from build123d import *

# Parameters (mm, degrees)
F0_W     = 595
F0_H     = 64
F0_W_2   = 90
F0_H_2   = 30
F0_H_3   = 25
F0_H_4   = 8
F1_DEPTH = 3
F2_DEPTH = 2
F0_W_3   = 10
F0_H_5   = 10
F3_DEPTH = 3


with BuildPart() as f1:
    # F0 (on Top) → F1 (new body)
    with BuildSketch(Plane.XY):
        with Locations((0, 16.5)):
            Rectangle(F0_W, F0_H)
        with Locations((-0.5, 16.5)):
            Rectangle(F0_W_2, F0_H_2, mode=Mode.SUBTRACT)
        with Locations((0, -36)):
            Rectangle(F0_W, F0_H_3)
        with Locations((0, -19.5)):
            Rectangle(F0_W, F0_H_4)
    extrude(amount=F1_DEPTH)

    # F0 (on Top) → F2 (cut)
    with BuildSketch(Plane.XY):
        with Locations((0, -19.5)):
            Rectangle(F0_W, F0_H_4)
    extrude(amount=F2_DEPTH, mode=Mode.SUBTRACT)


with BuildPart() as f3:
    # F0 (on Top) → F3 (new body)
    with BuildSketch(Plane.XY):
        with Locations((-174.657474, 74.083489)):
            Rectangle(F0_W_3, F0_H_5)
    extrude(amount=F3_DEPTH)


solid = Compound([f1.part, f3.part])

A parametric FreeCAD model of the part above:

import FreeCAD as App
import Part
import Sketcher

V = App.Vector
Q = App.Units.Quantity


def add_polygon(sketch, points):
    """Adds a closed chain of lines whose ends are joined by coincident constraints."""
    first, n = sketch.GeometryCount, len(points)
    for a, b in zip(points, points[1:] + points[:1]):
        sketch.addGeometry(Part.LineSegment(App.Vector(*a, 0), App.Vector(*b, 0)), False)
    for i in range(n):
        sketch.addConstraint(Sketcher.Constraint("Coincident", first + i, 2, first + (i + 1) % n, 1))

doc = App.newDocument("Part")
body = doc.addObject("PartDesign::Body", "Body")

# Sketch on XY plane
sketch1 = body.newObject("Sketcher::SketchObject", "Sketch")
sketch1.AttachmentSupport = (doc.getObject("XY_Plane"), [""])
sketch1.MapMode = "FlatFace"
add_polygon(sketch1, [(-298, 48), (-298, -48), (298, -48), (298, 48)])  # lines 0-3
add_polygon(sketch1, [(44, 2), (-46, 2), (-46, 32), (44, 32)])  # lines 4-7
sketch1.addConstraint([
    Sketcher.Constraint("Vertical", 0),
    Sketcher.Constraint("Horizontal", 1),
    Sketcher.Constraint("Vertical", 2),
    Sketcher.Constraint("Horizontal", 3),
    Sketcher.Constraint("Horizontal", 4),
    Sketcher.Constraint("Vertical", 5),
    Sketcher.Constraint("Horizontal", 6),
    Sketcher.Constraint("Vertical", 7),
    Sketcher.Constraint("Symmetric", 0, 2, 2, 2, -1, 1),
    Sketcher.Constraint("DistanceX", 1, 1, 1, 2, Q("595 mm")),
    Sketcher.Constraint("DistanceX", 4, 2, 4, 1, Q("90 mm")),
    Sketcher.Constraint("DistanceY", 0, 2, 0, 1, Q("97 mm")),
    Sketcher.Constraint("DistanceY", 5, 1, 5, 2, Q("30 mm")),
    Sketcher.Constraint("DistanceX", 3, 2, 4, 2, Q("252 mm")),
    Sketcher.Constraint("DistanceY", 4, 2, 3, 2, Q("47 mm")),
])
pad1 = body.newObject("PartDesign::Pad", "Pad")
pad1.Profile = sketch1
pad1.Length = 3

# Sketch on XY plane
sketch2 = body.newObject("Sketcher::SketchObject", "Sketch001")
sketch2.AttachmentSupport = (doc.getObject("XY_Plane"), [""])
sketch2.MapMode = "FlatFace"
add_polygon(sketch2, [(-298, -16), (-298, -24), (298, -24), (298, -16)])  # lines 0-3
sketch2.addConstraint([
    Sketcher.Constraint("Vertical", 0),
    Sketcher.Constraint("Horizontal", 1),
    Sketcher.Constraint("Vertical", 2),
    Sketcher.Constraint("Horizontal", 3),
    Sketcher.Constraint("DistanceX", 1, 1, 1, 2, Q("595 mm")),
    Sketcher.Constraint("DistanceY", 0, 2, 0, 1, Q("8 mm")),
    Sketcher.Constraint("DistanceX", 0, 2, -1, 1, Q("297.5 mm")),
    Sketcher.Constraint("DistanceY", 0, 2, -1, 1, Q("23.5 mm")),
])
pocket1 = body.newObject("PartDesign::Pocket", "Pocket")
pocket1.Profile = sketch2
pocket1.Length = 2
pocket1.Reversed = True
body2 = doc.addObject("PartDesign::Body", "Body001")

# Sketch on XY plane
sketch3 = body2.newObject("Sketcher::SketchObject", "Sketch002")
sketch3.AttachmentSupport = (doc.getObject("XY_Plane001"), [""])
sketch3.MapMode = "FlatFace"
add_polygon(sketch3, [(-180, 79), (-180, 69), (-170, 69), (-170, 79)])  # lines 0-3
sketch3.addConstraint([
    Sketcher.Constraint("Vertical", 0),
    Sketcher.Constraint("Horizontal", 1),
    Sketcher.Constraint("Vertical", 2),
    Sketcher.Constraint("Horizontal", 3),
    Sketcher.Constraint("Equal", 3, 0),
    Sketcher.Constraint("DistanceX", 1, 1, 1, 2, Q("10 mm")),
    Sketcher.Constraint("DistanceY", -1, 1, 0, 2, Q("69.083489 mm")),
    Sketcher.Constraint("DistanceX", 0, 2, -1, 1, Q("179.657474 mm")),
])
pad2 = body2.newObject("PartDesign::Pad", "Pad001")
pad2.Profile = sketch3
pad2.Length = 3

doc.recompute()
